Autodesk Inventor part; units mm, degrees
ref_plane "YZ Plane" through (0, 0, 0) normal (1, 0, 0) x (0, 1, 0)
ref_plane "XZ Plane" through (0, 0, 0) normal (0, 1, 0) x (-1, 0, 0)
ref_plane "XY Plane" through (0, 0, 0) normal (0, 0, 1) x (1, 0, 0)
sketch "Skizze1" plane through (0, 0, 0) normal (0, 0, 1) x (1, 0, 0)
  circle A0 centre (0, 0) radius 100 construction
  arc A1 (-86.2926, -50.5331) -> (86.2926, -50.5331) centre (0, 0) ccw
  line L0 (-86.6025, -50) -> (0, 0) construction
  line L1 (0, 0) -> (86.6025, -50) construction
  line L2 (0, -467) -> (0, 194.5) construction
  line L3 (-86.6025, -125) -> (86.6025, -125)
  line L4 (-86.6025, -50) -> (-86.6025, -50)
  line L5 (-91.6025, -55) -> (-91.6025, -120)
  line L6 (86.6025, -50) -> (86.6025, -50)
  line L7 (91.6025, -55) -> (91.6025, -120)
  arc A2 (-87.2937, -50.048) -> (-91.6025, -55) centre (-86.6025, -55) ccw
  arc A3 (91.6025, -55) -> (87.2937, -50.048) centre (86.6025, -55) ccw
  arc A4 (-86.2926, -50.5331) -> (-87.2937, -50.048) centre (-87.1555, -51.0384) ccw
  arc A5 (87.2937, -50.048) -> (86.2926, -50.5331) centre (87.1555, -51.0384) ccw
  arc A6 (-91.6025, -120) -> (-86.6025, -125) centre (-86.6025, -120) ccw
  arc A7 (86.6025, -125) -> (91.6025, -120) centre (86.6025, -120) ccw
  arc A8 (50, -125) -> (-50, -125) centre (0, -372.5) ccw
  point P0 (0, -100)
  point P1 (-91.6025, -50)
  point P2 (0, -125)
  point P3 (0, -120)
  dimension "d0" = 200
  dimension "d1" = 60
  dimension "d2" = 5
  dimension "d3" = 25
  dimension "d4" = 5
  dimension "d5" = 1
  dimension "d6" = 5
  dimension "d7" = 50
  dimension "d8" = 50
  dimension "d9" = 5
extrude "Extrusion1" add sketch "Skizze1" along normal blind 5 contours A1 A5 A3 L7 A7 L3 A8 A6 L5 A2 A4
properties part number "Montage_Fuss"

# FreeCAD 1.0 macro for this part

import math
import FreeCAD as App
import Part
import Sketcher
Q = App.Units.Quantity

doc = App.newDocument("Part")
body = doc.addObject("PartDesign::Body", "Body")

# Sketch on XY plane
sketch1 = doc.addObject("Sketcher::SketchObject", "Sketch")
body.addObject(sketch1)
sketch1.AttachmentSupport = (doc.XY_Plane, [""])
sketch1.MapMode = "FlatFace"
sketch1.addGeometry(Part.ArcOfCircle(Part.Circle(App.Vector(0, 0, 0), App.Vector(0, 0, 1), 100), math.radians(-150), math.radians(-30)), False)
sketch1.addGeometry(Part.ArcOfCircle(Part.Circle(App.Vector(-87.2, -51, 0), App.Vector(0, 0, 1), 1), math.radians(30), math.radians(98)), False)
sketch1.addGeometry(Part.ArcOfCircle(Part.Circle(App.Vector(-86.6, -55, 0), App.Vector(0, 0, 1), 5), math.radians(98), math.radians(180)), False)
sketch1.addGeometry(Part.LineSegment(App.Vector(-91.6, -55, 0), App.Vector(-91.6, -120, 0)), False)
sketch1.addGeometry(Part.ArcOfCircle(Part.Circle(App.Vector(-86.6, -120, 0), App.Vector(0, 0, 1), 5), math.radians(180), math.radians(270)), False)
sketch1.addGeometry(Part.LineSegment(App.Vector(-86.6, -125, 0), App.Vector(-50, -125, 0)), False)
sketch1.addGeometry(Part.ArcOfCircle(Part.Circle(App.Vector(0, -372.5, 0), App.Vector(0, 0, 1), 252.5), math.radians(79), math.radians(101)), False)
sketch1.addGeometry(Part.LineSegment(App.Vector(50, -125, 0), App.Vector(86.6, -125, 0)), False)
sketch1.addGeometry(Part.ArcOfCircle(Part.Circle(App.Vector(86.6, -120, 0), App.Vector(0, 0, 1), 5), math.radians(-90), math.radians(0)), False)
sketch1.addGeometry(Part.LineSegment(App.Vector(91.6, -120, 0), App.Vector(91.6, -55, 0)), False)
sketch1.addGeometry(Part.ArcOfCircle(Part.Circle(App.Vector(86.6, -55, 0), App.Vector(0, 0, 1), 5), math.radians(0), math.radians(82)), False)
sketch1.addGeometry(Part.ArcOfCircle(Part.Circle(App.Vector(87.2, -51, 0), App.Vector(0, 0, 1), 1), math.radians(82), math.radians(150)), False)
sketch1.addConstraint(Sketcher.Constraint("Tangent", 0, 1, 1, 1))
sketch1.addConstraint(Sketcher.Constraint("Tangent", 1, 2, 2, 1))
sketch1.addConstraint(Sketcher.Constraint("Tangent", 2, 2, 3, 1))
sketch1.addConstraint(Sketcher.Constraint("Tangent", 3, 2, 4, 1))
sketch1.addConstraint(Sketcher.Constraint("Tangent", 4, 2, 5, 1))
sketch1.addConstraint(Sketcher.Constraint("Coincident", 5, 2, 6, 2))
sketch1.addConstraint(Sketcher.Constraint("Coincident", 6, 1, 7, 1))
sketch1.addConstraint(Sketcher.Constraint("Tangent", 7, 2, 8, 1))
sketch1.addConstraint(Sketcher.Constraint("Tangent", 8, 2, 9, 1))
sketch1.addConstraint(Sketcher.Constraint("Tangent", 9, 2, 10, 1))
sketch1.addConstraint(Sketcher.Constraint("Tangent", 10, 2, 11, 1))
sketch1.addConstraint(Sketcher.Constraint("Tangent", 11, 2, 0, 2))
sketch1.addConstraint(Sketcher.Constraint("Vertical", 3))
sketch1.addConstraint(Sketcher.Constraint("Horizontal", 5))
sketch1.addConstraint(Sketcher.Constraint("Horizontal", 7))
sketch1.addConstraint(Sketcher.Constraint("Vertical", 9))
sketch1.addConstraint(Sketcher.Constraint("Coincident", 0, 3, -1, 1))
sketch1.addConstraint(Sketcher.Constraint("Equal", 2, 4))
sketch1.addConstraint(Sketcher.Constraint("Equal", 4, 8))
sketch1.addConstraint(Sketcher.Constraint("Equal", 8, 10))
sketch1.addConstraint(Sketcher.Constraint("Equal", 1, 11))
sketch1.addConstraint(Sketcher.Constraint("Symmetric", 4, 3, 8, 3, -2))
sketch1.addConstraint(Sketcher.Constraint("PointOnObject", 6, 3, -2))
sketch1.addConstraint(Sketcher.Constraint("Horizontal", 2, 3, 10, 3))
sketch1.addConstraint(Sketcher.Constraint("Radius", 0, Q("100 mm")))
sketch1.addConstraint(Sketcher.Constraint("Radius", 1, Q("1 mm")))
sketch1.addConstraint(Sketcher.Constraint("Radius", 2, Q("5 mm")))
sketch1.addConstraint(Sketcher.Constraint("DistanceX", 5, 2, -1, 1, Q("50 mm")))
sketch1.addConstraint(Sketcher.Constraint("Radius", 6, Q("252.5 mm")))
sketch1.addConstraint(Sketcher.Constraint("DistanceY", 3, 2, 3, 1, Q("65 mm")))
sketch1.addConstraint(Sketcher.Constraint("DistanceY", 2, 3, -1, 1, Q("55 mm")))
sketch1.addConstraint(Sketcher.Constraint("DistanceX", 2, 3, 0, 1, Q("0.31 mm")))
pad1 = doc.addObject("PartDesign::Pad", "Pad")
body.addObject(pad1)
pad1.Profile = sketch1
pad1.Length = 5

doc.recompute()
